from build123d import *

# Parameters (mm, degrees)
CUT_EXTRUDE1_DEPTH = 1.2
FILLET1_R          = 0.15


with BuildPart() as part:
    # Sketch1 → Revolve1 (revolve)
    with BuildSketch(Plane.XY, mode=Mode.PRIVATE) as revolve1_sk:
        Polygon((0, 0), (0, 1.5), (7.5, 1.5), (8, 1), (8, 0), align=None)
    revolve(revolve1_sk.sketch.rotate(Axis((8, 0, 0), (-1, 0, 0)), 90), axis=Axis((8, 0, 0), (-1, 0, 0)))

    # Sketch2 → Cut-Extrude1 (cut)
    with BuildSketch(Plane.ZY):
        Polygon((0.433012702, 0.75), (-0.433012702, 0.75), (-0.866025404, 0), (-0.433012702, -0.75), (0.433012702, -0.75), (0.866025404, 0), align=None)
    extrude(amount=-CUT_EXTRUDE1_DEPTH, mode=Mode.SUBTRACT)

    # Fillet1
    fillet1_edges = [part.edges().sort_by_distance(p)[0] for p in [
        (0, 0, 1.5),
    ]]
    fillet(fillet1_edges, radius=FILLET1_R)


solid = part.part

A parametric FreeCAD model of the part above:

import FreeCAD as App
import Part
import Sketcher

V = App.Vector
Q = App.Units.Quantity


def edges_at(feature, points):
    """Names of the edges that pass closest to the given points."""
    edges = feature.Shape.Edges
    near = lambda p: min(range(len(edges)), key=lambda i: edges[i].distToShape(Part.Vertex(*p))[0])
    return sorted({f"Edge{near(p) + 1}" for p in points})


def add_polygon(sketch, points):
    """Adds a closed chain of lines whose ends are joined by coincident constraints."""
    first, n = sketch.GeometryCount, len(points)
    for a, b in zip(points, points[1:] + points[:1]):
        sketch.addGeometry(Part.LineSegment(App.Vector(*a, 0), App.Vector(*b, 0)), False)
    for i in range(n):
        sketch.addConstraint(Sketcher.Constraint("Coincident", first + i, 2, first + (i + 1) % n, 1))

doc = App.newDocument("Part")
body = doc.addObject("PartDesign::Body", "Body")

sketch1 = body.newObject("Sketcher::SketchObject", "Sketch")
sketch1.AttachmentSupport = (doc.getObject("XY_Plane"), [""])
sketch1.MapMode = "FlatFace"
add_polygon(sketch1, [(0, 1.5), (0, 0), (8, 0), (8, 1), (7.5, 1.5)])
sketch1.addConstraint(Sketcher.Constraint("Vertical", 0))
sketch1.addConstraint(Sketcher.Constraint("Horizontal", 1))
sketch1.addConstraint(Sketcher.Constraint("Vertical", 2))
sketch1.addConstraint(Sketcher.Constraint("Horizontal", 4))
sketch1.addConstraint(Sketcher.Constraint("Coincident", 0, 2, -1, 1))
sketch1.addConstraint(Sketcher.Constraint("DistanceX", 1, 1, 1, 2, Q("8 mm")))
sketch1.addConstraint(Sketcher.Constraint("DistanceY", 2, 1, 2, 2, Q("1 mm")))
sketch1.addConstraint(Sketcher.Constraint("Angle", 3, Q("135 deg")))
sketch1.addConstraint(Sketcher.Constraint("DistanceX", 4, 2, 4, 1, Q("7.5 mm")))
revolution = body.newObject("PartDesign::Revolution", "Revolution")
revolution.Profile = sketch1
revolution.ReferenceAxis = (sketch1, ["H_Axis"])
revolution.Angle = 360

sketch2 = body.newObject("Sketcher::SketchObject", "Sketch001")
sketch2.AttachmentSupport = (doc.getObject("YZ_Plane"), [""])
sketch2.MapMode = "FlatFace"
add_polygon(sketch2, [(0.8, 0.4), (0.8, -0.4), (0, -0.9), (-0.8, -0.4), (-0.8, 0.4), (0, 0.9)])
sketch2.addConstraint(Sketcher.Constraint("Vertical", 0))
sketch2.addConstraint(Sketcher.Constraint("Vertical", 3))
sketch2.addConstraint(Sketcher.Constraint("Symmetric", 0, 2, 3, 2, -1, 1))
sketch2.addConstraint(Sketcher.Constraint("Symmetric", 1, 2, 4, 2, -1, 1))
sketch2.addConstraint(Sketcher.Constraint("PointOnObject", 1, 2, -2))
sketch2.addConstraint(Sketcher.Constraint("Parallel", 2, 5))
sketch2.addConstraint(Sketcher.Constraint("Horizontal", 0, 2, 2, 2))
sketch2.addConstraint(Sketcher.Constraint("Angle", 1, Q("-150 deg")))
sketch2.addConstraint(Sketcher.Constraint("DistanceX", 2, 2, 0, 2, Q("1.5 mm")))
sketch2.addConstraint(Sketcher.Constraint("DistanceY", 0, 2, 0, 1, Q("0.866025 mm")))
pocket1 = body.newObject("PartDesign::Pocket", "Pocket")
pocket1.Profile = sketch2
pocket1.Length = 1.2
pocket1.Reversed = True
doc.recompute()

fillet = body.newObject("PartDesign::Fillet", "Fillet")
fillet.Base = (pocket1, edges_at(pocket1, [(0, 0, 1.5)]))
fillet.Radius = 0.15

doc.recompute()
